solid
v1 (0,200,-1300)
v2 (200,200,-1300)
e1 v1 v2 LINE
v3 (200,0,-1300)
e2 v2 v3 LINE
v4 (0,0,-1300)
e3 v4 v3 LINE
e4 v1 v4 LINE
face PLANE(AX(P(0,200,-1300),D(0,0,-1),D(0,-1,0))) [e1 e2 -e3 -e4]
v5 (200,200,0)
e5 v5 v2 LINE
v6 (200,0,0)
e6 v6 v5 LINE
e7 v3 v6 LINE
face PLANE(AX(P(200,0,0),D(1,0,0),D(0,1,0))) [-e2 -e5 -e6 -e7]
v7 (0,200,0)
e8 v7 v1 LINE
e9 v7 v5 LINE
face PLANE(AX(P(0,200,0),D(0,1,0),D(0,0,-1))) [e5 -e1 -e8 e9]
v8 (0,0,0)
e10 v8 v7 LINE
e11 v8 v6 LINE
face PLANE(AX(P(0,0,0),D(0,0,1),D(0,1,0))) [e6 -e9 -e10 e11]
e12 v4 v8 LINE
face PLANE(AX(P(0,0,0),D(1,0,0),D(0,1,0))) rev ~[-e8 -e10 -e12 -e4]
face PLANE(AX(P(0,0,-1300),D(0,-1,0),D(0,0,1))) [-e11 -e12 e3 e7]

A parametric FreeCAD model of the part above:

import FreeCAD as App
import Part
import Sketcher
from FreeCAD import Vector


def add_polygon(sketch, points):
    """Adds a closed chain of lines whose ends are joined by coincident constraints."""
    first, n = sketch.GeometryCount, len(points)
    for a, b in zip(points, points[1:] + points[:1]):
        sketch.addGeometry(Part.LineSegment(App.Vector(*a, 0), App.Vector(*b, 0)), False)
    for i in range(n):
        sketch.addConstraint(Sketcher.Constraint("Coincident", first + i, 2, first + (i + 1) % n, 1))

doc = App.newDocument("Part")
body = doc.addObject("PartDesign::Body", "Body")

sketch1 = body.newObject("Sketcher::SketchObject", "Sketch")
sketch1.AttachmentSupport = (doc.getObject("YZ_Plane"), [""])
sketch1.MapMode = "FlatFace"
add_polygon(sketch1, [(200, 0), (0, 0), (0, -1300), (200, -1300)])
sketch1.addConstraint(Sketcher.Constraint("Horizontal", 0))
sketch1.addConstraint(Sketcher.Constraint("Vertical", 1))
sketch1.addConstraint(Sketcher.Constraint("Horizontal", 2))
sketch1.addConstraint(Sketcher.Constraint("Vertical", 3))
sketch1.addConstraint(Sketcher.Constraint("Coincident", 0, 2, -1, 1))
sketch1.addConstraint(Sketcher.Constraint("DistanceX", 0, 2, 0, 1, 200.0))
sketch1.addConstraint(Sketcher.Constraint("DistanceY", 1, 2, 1, 1, 1300.0))
pad1 = body.newObject("PartDesign::Pad", "Pad")
pad1.Profile = sketch1
pad1.Length = 200

doc.recompute()
